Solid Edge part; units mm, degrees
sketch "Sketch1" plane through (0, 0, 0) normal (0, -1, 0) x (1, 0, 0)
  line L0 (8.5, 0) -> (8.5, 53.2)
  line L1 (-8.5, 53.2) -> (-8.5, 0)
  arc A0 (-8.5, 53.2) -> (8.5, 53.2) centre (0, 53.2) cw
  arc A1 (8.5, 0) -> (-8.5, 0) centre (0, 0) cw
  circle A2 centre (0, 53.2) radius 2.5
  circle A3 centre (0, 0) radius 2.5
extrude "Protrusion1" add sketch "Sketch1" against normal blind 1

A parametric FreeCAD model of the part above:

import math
import FreeCAD as App
import Part
import Sketcher
from FreeCAD import Vector
Q = App.Units.Quantity

doc = App.newDocument("Part")
body = doc.addObject("PartDesign::Body", "Body")

# Sketch on XZ plane
sketch1 = body.newObject("Sketcher::SketchObject", "Sketch")
sketch1.AttachmentSupport = (doc.getObject("XZ_Plane"), [""])
sketch1.MapMode = "FlatFace"
sketch1.addGeometry(Part.ArcOfCircle(Part.Circle(Vector(0, 0, 0), Vector(0, 0, 1), 8.5), math.radians(180), math.radians(360)), False)
sketch1.addGeometry(Part.LineSegment(Vector(8.5, 0, 0), Vector(8.5, 53.2, 0)), False)
sketch1.addGeometry(Part.ArcOfCircle(Part.Circle(Vector(0, 53.2, 0), Vector(0, 0, 1), 8.5), math.radians(0), math.radians(180)), False)
sketch1.addGeometry(Part.LineSegment(Vector(-8.5, 53.2, 0), Vector(-8.5, 0, 0)), False)
sketch1.addGeometry(Part.Circle(Vector(0, 0, 0), Vector(0, 0, 1), 2.5), False)
sketch1.addGeometry(Part.Circle(Vector(0, 53.2, 0), Vector(0, 0, 1), 2.5), False)
sketch1.addConstraint(Sketcher.Constraint("Tangent", 0, 2, 1, 1))
sketch1.addConstraint(Sketcher.Constraint("Tangent", 1, 2, 2, 1))
sketch1.addConstraint(Sketcher.Constraint("Tangent", 2, 2, 3, 1))
sketch1.addConstraint(Sketcher.Constraint("Tangent", 3, 2, 0, 1))
sketch1.addConstraint(Sketcher.Constraint("Vertical", 1))
sketch1.addConstraint(Sketcher.Constraint("Vertical", 3))
sketch1.addConstraint(Sketcher.Constraint("Coincident", 0, 3, -1, 1))
sketch1.addConstraint(Sketcher.Constraint("Coincident", 4, 3, -1, 1))
sketch1.addConstraint(Sketcher.Constraint("Coincident", 5, 3, 2, 3))
sketch1.addConstraint(Sketcher.Constraint("Equal", 4, 5))
sketch1.addConstraint(Sketcher.Constraint("Diameter", 4, Q("5 mm")))
sketch1.addConstraint(Sketcher.Constraint("Radius", 0, Q("8.5 mm")))
sketch1.addConstraint(Sketcher.Constraint("DistanceY", 1, 1, 1, 2, Q("53.2 mm")))
pad1 = body.newObject("PartDesign::Pad", "Pad")
pad1.Profile = sketch1
pad1.Length = 1
pad1.Reversed = True

doc.recompute()
